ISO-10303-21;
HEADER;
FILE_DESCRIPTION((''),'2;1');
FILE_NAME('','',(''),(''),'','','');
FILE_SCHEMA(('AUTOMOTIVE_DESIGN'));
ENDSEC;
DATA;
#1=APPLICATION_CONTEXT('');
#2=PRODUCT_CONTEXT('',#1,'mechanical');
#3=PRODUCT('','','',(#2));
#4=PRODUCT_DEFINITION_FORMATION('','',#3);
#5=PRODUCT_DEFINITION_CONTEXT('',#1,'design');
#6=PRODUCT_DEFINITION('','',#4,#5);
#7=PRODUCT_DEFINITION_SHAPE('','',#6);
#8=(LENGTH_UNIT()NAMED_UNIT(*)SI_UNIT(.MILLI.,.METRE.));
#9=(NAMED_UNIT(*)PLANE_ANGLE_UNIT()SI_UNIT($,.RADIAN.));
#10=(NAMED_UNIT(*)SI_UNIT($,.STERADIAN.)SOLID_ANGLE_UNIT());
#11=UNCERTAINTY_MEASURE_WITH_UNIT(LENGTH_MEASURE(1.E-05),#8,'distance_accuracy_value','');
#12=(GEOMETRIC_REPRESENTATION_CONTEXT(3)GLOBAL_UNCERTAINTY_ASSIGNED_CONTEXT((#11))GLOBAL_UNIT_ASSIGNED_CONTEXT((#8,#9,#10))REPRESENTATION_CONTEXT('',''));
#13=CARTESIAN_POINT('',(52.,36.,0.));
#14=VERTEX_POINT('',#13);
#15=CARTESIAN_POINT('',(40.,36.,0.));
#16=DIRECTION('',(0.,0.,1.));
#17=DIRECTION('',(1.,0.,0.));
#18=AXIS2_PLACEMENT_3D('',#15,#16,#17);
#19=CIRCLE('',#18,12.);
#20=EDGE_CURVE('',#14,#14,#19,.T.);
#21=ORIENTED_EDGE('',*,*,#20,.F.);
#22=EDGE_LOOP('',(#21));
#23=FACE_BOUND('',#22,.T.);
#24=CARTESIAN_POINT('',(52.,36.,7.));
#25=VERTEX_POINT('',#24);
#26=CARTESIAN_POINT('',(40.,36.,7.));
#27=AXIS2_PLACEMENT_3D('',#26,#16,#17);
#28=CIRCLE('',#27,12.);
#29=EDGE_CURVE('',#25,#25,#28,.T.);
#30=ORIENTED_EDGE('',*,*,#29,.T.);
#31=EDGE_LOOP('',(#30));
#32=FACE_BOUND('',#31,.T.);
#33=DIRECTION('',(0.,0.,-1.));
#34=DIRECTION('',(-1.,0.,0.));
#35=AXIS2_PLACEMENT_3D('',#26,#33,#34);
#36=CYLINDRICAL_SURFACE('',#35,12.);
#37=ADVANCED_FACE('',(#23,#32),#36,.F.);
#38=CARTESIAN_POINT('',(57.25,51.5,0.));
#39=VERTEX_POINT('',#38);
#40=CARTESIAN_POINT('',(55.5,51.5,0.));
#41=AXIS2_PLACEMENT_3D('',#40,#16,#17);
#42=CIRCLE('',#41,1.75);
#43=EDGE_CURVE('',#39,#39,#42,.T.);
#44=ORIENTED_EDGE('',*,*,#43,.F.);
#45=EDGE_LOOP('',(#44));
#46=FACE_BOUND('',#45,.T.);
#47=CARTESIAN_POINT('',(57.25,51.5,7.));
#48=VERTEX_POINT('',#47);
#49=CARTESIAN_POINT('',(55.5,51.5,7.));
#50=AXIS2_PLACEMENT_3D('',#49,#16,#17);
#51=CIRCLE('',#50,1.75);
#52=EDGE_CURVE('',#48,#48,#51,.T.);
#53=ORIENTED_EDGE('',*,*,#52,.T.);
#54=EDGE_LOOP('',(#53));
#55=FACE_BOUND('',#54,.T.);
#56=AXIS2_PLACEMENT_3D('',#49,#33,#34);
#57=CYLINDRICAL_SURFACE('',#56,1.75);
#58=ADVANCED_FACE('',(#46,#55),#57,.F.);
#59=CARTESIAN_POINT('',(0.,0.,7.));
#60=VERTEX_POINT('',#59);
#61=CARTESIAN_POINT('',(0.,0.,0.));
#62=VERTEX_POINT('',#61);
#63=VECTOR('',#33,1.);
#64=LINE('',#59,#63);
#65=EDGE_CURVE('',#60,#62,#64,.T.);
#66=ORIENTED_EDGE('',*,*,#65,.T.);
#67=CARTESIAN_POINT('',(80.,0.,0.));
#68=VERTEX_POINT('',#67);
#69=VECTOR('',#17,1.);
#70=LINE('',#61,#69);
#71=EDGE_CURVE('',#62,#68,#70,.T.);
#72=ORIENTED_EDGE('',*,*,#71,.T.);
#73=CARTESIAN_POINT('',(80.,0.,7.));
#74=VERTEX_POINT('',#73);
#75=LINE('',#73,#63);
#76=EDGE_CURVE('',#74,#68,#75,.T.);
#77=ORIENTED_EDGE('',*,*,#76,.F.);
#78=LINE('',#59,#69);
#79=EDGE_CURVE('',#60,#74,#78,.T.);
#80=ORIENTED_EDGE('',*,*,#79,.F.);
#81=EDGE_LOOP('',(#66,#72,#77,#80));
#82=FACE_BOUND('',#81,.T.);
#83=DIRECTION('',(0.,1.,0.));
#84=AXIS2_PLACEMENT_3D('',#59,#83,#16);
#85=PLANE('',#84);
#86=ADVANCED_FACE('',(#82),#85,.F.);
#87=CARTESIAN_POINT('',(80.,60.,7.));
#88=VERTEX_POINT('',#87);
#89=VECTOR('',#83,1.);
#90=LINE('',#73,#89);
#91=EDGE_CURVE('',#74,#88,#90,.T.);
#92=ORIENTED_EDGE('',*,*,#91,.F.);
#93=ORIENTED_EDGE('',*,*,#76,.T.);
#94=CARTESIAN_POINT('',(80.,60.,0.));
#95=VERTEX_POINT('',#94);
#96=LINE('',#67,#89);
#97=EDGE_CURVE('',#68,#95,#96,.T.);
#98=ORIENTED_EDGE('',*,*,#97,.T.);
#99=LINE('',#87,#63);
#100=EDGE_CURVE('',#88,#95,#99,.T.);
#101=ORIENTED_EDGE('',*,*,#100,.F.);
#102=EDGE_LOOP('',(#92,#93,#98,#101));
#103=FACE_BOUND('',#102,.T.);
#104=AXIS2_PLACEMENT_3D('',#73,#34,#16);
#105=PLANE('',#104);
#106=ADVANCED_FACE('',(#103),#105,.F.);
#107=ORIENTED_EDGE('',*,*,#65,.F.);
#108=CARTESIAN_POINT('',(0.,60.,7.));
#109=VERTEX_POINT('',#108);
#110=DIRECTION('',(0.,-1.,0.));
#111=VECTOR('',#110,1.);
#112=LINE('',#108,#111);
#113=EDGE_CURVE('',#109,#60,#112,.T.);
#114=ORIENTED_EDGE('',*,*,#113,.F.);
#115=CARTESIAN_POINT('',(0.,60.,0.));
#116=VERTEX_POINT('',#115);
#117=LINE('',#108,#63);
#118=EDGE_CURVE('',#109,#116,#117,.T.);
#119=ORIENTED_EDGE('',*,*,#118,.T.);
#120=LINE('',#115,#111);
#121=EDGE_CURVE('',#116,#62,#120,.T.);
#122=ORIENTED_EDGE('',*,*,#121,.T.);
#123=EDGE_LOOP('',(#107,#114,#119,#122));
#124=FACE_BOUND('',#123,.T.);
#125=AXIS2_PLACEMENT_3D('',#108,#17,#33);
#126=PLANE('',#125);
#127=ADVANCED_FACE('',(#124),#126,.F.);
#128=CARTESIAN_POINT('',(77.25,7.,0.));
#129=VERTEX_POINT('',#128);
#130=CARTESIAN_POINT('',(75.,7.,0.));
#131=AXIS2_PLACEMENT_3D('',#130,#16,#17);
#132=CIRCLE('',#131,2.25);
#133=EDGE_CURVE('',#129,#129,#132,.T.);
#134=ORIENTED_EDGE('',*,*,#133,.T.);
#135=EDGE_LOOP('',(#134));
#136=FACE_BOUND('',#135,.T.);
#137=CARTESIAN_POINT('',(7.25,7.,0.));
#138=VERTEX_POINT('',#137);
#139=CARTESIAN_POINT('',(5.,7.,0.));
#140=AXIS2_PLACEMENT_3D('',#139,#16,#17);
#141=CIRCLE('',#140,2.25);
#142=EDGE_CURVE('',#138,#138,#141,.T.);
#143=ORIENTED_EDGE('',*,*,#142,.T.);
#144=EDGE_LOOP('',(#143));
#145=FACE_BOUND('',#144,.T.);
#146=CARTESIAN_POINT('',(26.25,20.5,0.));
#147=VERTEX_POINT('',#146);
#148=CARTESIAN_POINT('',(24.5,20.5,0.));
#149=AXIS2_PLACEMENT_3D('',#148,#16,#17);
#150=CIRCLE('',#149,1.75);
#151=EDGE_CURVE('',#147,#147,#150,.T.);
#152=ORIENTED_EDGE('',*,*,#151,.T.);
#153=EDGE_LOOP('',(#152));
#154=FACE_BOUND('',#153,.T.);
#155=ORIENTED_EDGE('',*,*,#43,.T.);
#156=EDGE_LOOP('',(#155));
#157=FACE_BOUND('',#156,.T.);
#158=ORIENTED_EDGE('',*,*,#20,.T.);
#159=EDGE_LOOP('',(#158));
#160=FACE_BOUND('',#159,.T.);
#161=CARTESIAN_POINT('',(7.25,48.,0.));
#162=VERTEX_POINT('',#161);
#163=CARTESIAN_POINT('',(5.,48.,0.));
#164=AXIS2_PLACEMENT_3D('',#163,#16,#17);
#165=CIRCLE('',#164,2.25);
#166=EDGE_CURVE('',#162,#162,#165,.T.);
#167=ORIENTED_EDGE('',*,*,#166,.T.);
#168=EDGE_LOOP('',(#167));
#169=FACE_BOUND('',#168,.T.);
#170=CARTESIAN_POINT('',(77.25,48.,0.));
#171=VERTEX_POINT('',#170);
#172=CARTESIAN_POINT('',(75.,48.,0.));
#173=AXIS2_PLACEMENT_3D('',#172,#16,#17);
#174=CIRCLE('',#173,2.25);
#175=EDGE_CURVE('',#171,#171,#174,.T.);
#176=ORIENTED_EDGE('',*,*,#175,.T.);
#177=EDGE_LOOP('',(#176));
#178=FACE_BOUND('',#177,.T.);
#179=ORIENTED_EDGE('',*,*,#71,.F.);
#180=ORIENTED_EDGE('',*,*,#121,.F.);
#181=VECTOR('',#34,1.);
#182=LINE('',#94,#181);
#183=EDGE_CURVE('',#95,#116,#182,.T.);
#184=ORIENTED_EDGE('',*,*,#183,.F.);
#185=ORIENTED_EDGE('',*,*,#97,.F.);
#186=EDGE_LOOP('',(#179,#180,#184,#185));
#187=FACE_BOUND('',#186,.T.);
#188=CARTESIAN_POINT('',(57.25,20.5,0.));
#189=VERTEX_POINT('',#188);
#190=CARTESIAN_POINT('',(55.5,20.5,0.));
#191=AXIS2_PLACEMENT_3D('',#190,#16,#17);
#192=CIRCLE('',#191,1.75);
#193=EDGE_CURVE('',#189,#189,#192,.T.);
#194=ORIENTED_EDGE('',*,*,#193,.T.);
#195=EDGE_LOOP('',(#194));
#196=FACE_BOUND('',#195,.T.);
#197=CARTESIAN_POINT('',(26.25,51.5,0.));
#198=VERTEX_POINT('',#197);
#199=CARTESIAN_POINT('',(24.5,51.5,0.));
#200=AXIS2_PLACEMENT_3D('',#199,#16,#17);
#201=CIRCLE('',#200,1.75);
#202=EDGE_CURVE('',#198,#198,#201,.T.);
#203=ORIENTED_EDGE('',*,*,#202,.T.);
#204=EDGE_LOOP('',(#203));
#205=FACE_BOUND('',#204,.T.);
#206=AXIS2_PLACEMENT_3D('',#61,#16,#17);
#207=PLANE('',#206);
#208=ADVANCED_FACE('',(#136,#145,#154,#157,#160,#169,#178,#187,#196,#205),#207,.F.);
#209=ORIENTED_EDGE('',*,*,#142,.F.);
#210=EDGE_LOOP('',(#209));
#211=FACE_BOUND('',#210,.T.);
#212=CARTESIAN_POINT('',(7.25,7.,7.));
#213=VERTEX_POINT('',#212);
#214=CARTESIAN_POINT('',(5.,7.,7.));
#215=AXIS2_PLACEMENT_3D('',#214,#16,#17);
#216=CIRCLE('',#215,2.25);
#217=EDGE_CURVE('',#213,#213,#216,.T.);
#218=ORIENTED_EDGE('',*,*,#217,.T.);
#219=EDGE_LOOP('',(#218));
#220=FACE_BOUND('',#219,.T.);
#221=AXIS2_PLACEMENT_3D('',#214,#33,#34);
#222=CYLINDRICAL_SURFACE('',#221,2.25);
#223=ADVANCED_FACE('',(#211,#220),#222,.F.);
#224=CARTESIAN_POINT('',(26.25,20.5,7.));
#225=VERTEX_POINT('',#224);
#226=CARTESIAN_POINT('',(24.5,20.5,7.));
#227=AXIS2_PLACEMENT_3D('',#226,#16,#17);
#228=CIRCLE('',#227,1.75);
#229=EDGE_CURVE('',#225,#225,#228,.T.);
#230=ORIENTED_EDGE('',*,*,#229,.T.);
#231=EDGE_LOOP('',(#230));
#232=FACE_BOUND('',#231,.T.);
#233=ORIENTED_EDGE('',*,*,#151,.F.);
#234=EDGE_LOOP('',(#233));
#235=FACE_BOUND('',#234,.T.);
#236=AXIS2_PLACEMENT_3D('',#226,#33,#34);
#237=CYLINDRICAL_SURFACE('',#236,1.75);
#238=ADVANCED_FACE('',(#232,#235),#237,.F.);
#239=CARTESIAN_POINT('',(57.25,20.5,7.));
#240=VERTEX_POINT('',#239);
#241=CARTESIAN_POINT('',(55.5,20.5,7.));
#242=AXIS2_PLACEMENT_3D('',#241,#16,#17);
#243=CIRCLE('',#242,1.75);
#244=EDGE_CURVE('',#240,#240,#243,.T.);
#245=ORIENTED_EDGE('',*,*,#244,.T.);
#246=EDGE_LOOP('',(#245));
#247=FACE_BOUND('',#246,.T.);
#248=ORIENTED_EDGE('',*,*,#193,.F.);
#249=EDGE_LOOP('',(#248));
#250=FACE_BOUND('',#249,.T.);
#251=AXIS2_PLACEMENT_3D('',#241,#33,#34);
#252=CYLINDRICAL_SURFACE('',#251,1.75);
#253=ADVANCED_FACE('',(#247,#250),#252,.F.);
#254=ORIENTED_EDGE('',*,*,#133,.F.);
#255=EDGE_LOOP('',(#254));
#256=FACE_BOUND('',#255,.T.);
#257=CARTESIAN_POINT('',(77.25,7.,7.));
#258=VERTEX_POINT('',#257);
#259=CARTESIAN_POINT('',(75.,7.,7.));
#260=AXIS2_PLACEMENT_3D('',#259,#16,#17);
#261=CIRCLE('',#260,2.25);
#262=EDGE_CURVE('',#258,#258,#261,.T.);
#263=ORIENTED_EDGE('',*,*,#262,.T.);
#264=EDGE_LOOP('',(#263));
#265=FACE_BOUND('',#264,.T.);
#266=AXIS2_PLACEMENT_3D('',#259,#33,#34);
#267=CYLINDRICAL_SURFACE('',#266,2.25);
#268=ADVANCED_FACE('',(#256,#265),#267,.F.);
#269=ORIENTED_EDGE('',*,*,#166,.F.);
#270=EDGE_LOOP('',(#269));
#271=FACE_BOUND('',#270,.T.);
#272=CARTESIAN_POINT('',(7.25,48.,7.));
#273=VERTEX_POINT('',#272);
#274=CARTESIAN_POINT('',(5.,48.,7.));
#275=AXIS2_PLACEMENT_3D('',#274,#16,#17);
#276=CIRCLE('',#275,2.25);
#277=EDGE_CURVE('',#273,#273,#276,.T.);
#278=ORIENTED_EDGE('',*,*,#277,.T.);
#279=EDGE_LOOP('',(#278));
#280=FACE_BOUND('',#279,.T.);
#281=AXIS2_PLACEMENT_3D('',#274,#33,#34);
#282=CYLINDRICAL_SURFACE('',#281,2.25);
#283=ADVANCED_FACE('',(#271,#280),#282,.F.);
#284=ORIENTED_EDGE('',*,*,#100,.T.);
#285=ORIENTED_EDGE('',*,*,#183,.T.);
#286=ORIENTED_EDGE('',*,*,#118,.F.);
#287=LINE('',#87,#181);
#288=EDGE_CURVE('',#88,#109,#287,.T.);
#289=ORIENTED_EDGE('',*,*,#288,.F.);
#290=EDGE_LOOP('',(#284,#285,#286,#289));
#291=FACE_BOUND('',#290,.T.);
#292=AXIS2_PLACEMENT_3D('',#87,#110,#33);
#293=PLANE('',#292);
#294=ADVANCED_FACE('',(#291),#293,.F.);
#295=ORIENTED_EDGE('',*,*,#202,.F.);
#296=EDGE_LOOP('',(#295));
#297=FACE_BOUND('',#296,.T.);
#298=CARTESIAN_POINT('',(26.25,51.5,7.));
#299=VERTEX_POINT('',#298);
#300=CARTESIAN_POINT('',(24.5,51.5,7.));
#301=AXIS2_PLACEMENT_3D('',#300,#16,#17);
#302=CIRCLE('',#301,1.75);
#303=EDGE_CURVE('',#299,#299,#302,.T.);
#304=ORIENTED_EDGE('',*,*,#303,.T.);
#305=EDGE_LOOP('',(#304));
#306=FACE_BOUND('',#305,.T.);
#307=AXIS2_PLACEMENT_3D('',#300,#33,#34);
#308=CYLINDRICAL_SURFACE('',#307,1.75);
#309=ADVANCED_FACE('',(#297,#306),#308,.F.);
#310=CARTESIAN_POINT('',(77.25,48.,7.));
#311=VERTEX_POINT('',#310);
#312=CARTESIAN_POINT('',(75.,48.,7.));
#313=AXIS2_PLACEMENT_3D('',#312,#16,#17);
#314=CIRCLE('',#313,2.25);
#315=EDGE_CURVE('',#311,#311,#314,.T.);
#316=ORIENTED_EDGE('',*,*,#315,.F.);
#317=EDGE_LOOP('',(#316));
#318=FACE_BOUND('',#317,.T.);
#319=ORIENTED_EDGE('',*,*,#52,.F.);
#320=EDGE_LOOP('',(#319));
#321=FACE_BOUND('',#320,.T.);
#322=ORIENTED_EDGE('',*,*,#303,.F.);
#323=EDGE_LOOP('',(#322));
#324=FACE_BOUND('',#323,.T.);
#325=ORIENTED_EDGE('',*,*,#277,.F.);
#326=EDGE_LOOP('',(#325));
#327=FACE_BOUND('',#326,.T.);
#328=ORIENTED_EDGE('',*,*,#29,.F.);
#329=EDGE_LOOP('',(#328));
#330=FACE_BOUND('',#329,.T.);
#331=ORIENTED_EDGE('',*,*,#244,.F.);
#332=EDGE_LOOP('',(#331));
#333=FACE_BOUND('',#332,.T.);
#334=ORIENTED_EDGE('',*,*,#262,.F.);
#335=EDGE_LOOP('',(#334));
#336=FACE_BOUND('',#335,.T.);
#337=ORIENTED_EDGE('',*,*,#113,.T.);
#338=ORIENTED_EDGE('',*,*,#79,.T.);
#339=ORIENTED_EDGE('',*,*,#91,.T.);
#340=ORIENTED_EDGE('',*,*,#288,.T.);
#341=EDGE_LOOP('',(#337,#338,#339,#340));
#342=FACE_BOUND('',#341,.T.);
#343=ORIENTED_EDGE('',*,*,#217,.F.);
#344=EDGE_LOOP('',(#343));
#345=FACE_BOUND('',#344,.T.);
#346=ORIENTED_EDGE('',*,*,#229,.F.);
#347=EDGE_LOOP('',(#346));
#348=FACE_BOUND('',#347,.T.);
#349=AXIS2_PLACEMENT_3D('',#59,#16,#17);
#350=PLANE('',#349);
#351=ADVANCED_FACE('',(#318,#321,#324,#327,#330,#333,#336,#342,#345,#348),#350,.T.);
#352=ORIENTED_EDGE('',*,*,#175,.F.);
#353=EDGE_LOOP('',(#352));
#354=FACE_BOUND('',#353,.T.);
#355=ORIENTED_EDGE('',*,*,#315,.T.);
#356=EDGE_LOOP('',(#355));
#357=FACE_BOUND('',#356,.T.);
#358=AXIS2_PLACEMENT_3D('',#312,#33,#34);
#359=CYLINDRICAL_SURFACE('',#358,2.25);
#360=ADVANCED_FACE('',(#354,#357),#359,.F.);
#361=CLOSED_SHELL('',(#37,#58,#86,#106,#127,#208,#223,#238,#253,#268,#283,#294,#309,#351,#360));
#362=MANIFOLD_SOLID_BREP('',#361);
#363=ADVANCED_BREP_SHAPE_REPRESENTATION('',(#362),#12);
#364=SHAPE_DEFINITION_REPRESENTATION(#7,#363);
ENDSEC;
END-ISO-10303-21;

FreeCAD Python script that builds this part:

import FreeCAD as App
import Part
import Sketcher

V = App.Vector


def add_polygon(sketch, points):
    """Adds a closed chain of lines whose ends are joined by coincident constraints."""
    first, n = sketch.GeometryCount, len(points)
    for a, b in zip(points, points[1:] + points[:1]):
        sketch.addGeometry(Part.LineSegment(App.Vector(*a, 0), App.Vector(*b, 0)), False)
    for i in range(n):
        sketch.addConstraint(Sketcher.Constraint("Coincident", first + i, 2, first + (i + 1) % n, 1))

doc = App.newDocument("Part")
body = doc.addObject("PartDesign::Body", "Body")

# Sketch on XY plane
sketch1 = body.newObject("Sketcher::SketchObject", "Sketch")
sketch1.AttachmentSupport = (doc.getObject("XY_Plane"), [""])
sketch1.MapMode = "FlatFace"
add_polygon(sketch1, [(0, 60), (0, 0), (80, 0), (80, 60)])  # lines 0-3
sketch1.addGeometry(Part.Circle(V(5, 7, 0), V(0, 0, 1), 2.25), False)  # 4
sketch1.addGeometry(Part.Circle(V(24.5, 20.5, 0), V(0, 0, 1), 1.75), False)  # 5
sketch1.addGeometry(Part.Circle(V(75, 7, 0), V(0, 0, 1), 2.25), False)  # 6
sketch1.addGeometry(Part.Circle(V(55.5, 20.5, 0), V(0, 0, 1), 1.75), False)  # 7
sketch1.addGeometry(Part.Circle(V(5, 48, 0), V(0, 0, 1), 2.25), False)  # 8
sketch1.addGeometry(Part.Circle(V(24.5, 51.5, 0), V(0, 0, 1), 1.75), False)  # 9
sketch1.addGeometry(Part.Circle(V(40, 36, 0), V(0, 0, 1), 12), False)  # 10
sketch1.addGeometry(Part.Circle(V(55.5, 51.5, 0), V(0, 0, 1), 1.75), False)  # 11
sketch1.addGeometry(Part.Circle(V(75, 48, 0), V(0, 0, 1), 2.25), False)  # 12
sketch1.addConstraint(Sketcher.Constraint("Vertical", 0))
sketch1.addConstraint(Sketcher.Constraint("Horizontal", 1))
sketch1.addConstraint(Sketcher.Constraint("Vertical", 2))
sketch1.addConstraint(Sketcher.Constraint("Horizontal", 3))
sketch1.addConstraint(Sketcher.Constraint("Coincident", 0, 2, -1, 1))
sketch1.addConstraint(Sketcher.Constraint("Equal", 4, 6))
sketch1.addConstraint(Sketcher.Constraint("Equal", 5, 7))
sketch1.addConstraint(Sketcher.Constraint("Equal", 6, 8))
sketch1.addConstraint(Sketcher.Constraint("Equal", 7, 9))
sketch1.addConstraint(Sketcher.Constraint("Equal", 9, 11))
sketch1.addConstraint(Sketcher.Constraint("Equal", 8, 12))
sketch1.addConstraint(Sketcher.Constraint("Horizontal", 4, 3, 6, 3))
sketch1.addConstraint(Sketcher.Constraint("Horizontal", 5, 3, 7, 3))
sketch1.addConstraint(Sketcher.Constraint("Horizontal", 9, 3, 11, 3))
sketch1.addConstraint(Sketcher.Constraint("Horizontal", 8, 3, 12, 3))
sketch1.addConstraint(Sketcher.Constraint("Vertical", 4, 3, 8, 3))
sketch1.addConstraint(Sketcher.Constraint("Vertical", 5, 3, 9, 3))
sketch1.addConstraint(Sketcher.Constraint("Vertical", 7, 3, 11, 3))
sketch1.addConstraint(Sketcher.Constraint("Vertical", 6, 3, 12, 3))
sketch1.addConstraint(Sketcher.Constraint("Diameter", 10, 24.0))
sketch1.addConstraint(Sketcher.Constraint("Diameter", 4, 4.5))
sketch1.addConstraint(Sketcher.Constraint("Diameter", 5, 3.5))
sketch1.addConstraint(Sketcher.Constraint("DistanceX", 1, 1, 1, 2, 80.0))
sketch1.addConstraint(Sketcher.Constraint("DistanceY", 0, 2, 0, 1, 60.0))
sketch1.addConstraint(Sketcher.Constraint("DistanceX", -1, 1, 4, 3, 5.0))
sketch1.addConstraint(Sketcher.Constraint("DistanceY", -1, 1, 4, 3, 7.0))
sketch1.addConstraint(Sketcher.Constraint("DistanceX", -1, 1, 6, 3, 75.0))
sketch1.addConstraint(Sketcher.Constraint("DistanceY", -1, 1, 8, 3, 48.0))
sketch1.addConstraint(Sketcher.Constraint("DistanceX", -1, 1, 10, 3, 40.0))
sketch1.addConstraint(Sketcher.Constraint("DistanceY", -1, 1, 10, 3, 36.0))
sketch1.addConstraint(Sketcher.Constraint("DistanceX", 5, 3, 7, 3, 31.0))
sketch1.addConstraint(Sketcher.Constraint("DistanceY", 5, 3, 9, 3, 31.0))
sketch1.addConstraint(Sketcher.Constraint("DistanceX", -1, 1, 5, 3, 24.5))
sketch1.addConstraint(Sketcher.Constraint("DistanceY", -1, 1, 5, 3, 20.5))
pad1 = body.newObject("PartDesign::Pad", "Pad")
pad1.Profile = sketch1
pad1.Length = 7

doc.recompute()
